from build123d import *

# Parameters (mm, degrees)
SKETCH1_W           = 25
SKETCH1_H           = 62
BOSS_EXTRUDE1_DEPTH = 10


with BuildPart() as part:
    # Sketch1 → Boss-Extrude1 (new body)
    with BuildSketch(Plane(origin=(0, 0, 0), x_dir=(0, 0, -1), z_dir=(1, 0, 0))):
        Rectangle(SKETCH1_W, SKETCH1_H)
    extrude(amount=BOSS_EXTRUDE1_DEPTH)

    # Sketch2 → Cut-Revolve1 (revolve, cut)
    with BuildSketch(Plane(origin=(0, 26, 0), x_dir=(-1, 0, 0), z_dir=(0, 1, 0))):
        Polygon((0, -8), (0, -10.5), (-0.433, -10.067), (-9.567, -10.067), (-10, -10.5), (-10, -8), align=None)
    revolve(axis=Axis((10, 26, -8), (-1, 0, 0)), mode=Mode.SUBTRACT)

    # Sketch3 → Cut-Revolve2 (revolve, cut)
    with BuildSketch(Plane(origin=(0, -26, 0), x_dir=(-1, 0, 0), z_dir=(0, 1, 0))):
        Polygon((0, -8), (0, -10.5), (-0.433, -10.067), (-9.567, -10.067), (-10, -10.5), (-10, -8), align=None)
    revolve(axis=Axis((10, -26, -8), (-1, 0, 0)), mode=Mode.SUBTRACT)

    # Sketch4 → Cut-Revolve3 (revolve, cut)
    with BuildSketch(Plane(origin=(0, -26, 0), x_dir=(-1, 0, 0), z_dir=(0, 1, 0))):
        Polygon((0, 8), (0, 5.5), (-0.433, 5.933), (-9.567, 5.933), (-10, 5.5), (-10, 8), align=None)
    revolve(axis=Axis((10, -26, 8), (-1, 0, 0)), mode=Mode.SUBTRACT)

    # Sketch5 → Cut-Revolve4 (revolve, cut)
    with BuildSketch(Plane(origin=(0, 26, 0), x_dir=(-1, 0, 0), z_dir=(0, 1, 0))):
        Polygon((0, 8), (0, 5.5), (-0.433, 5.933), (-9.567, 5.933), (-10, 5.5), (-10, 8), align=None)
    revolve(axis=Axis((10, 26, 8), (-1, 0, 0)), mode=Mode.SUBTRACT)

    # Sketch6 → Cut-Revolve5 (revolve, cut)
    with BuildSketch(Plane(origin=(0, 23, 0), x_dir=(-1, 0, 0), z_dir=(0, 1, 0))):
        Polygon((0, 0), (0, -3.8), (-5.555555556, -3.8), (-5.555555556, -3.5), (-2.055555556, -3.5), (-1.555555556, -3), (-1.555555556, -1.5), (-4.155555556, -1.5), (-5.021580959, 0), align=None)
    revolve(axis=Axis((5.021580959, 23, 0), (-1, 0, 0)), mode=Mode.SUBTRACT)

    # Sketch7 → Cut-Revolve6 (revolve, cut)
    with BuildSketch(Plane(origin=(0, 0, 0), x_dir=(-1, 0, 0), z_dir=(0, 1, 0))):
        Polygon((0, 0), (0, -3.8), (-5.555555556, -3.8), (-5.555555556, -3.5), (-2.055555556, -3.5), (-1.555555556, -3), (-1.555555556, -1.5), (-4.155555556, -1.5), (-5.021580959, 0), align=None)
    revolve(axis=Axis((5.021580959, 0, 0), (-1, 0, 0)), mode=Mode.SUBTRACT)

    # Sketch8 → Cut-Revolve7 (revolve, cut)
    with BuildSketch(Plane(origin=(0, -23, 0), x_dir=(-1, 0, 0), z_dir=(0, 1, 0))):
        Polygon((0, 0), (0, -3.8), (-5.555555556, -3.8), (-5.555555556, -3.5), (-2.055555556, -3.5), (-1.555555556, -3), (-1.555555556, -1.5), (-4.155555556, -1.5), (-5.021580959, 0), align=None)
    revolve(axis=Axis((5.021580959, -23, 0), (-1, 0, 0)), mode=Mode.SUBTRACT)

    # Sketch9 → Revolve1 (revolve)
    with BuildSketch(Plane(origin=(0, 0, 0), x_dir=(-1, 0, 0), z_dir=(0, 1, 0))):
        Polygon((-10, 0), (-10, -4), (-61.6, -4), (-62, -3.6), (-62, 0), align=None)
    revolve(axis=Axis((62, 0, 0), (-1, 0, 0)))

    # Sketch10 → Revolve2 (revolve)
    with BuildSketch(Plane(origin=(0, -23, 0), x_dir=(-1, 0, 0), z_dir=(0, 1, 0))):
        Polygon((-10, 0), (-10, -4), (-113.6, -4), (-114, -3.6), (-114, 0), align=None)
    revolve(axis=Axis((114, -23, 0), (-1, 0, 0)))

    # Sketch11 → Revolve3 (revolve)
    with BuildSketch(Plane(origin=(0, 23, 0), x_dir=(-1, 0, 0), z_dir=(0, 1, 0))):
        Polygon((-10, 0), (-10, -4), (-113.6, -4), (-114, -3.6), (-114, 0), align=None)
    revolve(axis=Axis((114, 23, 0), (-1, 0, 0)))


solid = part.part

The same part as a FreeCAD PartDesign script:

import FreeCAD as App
import Part
import Sketcher

V = App.Vector
Q = App.Units.Quantity


def add_polygon(sketch, points):
    """Adds a closed chain of lines whose ends are joined by coincident constraints."""
    first, n = sketch.GeometryCount, len(points)
    for a, b in zip(points, points[1:] + points[:1]):
        sketch.addGeometry(Part.LineSegment(App.Vector(*a, 0), App.Vector(*b, 0)), False)
    for i in range(n):
        sketch.addConstraint(Sketcher.Constraint("Coincident", first + i, 2, first + (i + 1) % n, 1))

doc = App.newDocument("Part")
params = doc.addObject("Spreadsheet::Sheet", "Params")
for row, (alias, value) in enumerate([
    ("sketch1_width", "62 mm"),
    ("sketch1_height", "25 mm"),
    ("pad1_length", "10 mm"),
    ("sketch2_width", "10 mm"),
    ("sketch2_height", "2.5 mm"),
    ("groove_angle", "360 deg"),
    ("sketch3_width", "10 mm"),
    ("sketch3_height", "2.5 mm"),
    ("groove2_angle", "360 deg"),
    ("sketch4_width", "10 mm"),
    ("sketch4_height", "2.5 mm"),
    ("groove3_angle", "360 deg"),
    ("sketch5_width", "10 mm"),
    ("sketch5_height", "2.5 mm"),
    ("groove4_angle", "360 deg"),
    ("sketch6_width", "2.6 mm"),
    ("sketch6_width2", "3.5 mm"),
    ("sketch6_height", "3.8 mm"),
    ("sketch6_height2", "1.5 mm"),
    ("sketch6_height3", "0.3 mm"),
    ("groove5_angle", "360 deg"),
    ("sketch7_width", "2.6 mm"),
    ("sketch7_width2", "3.5 mm"),
    ("sketch7_height", "3.8 mm"),
    ("sketch7_height2", "1.5 mm"),
    ("sketch7_height3", "0.3 mm"),
    ("groove6_angle", "360 deg"),
    ("sketch8_width", "2.6 mm"),
    ("sketch8_width2", "3.5 mm"),
    ("sketch8_height", "3.8 mm"),
    ("sketch8_height2", "1.5 mm"),
    ("sketch8_height3", "0.3 mm"),
    ("groove7_angle", "360 deg"),
    ("sketch9_width", "52 mm"),
    ("sketch9_height", "4 mm"),
    ("sketch9_width2", "51.6 mm"),
    ("revolution_angle", "360 deg"),
    ("sketch10_width", "104 mm"),
    ("sketch10_height", "4 mm"),
    ("sketch10_width2", "103.6 mm"),
    ("revolution2_angle", "360 deg"),
    ("sketch11_width", "104 mm"),
    ("sketch11_height", "4 mm"),
    ("sketch11_width2", "103.6 mm"),
    ("revolution3_angle", "360 deg"),
], start=1):
    params.set(f"A{row}", alias)
    params.set(f"B{row}", "=" + value)
    params.setAlias(f"B{row}", alias)

body = doc.addObject("PartDesign::Body", "Body")

sketch1 = body.newObject("Sketcher::SketchObject", "Sketch")
sketch1.AttachmentSupport = (doc.getObject("YZ_Plane"), [""])
sketch1.MapMode = "FlatFace"
add_polygon(sketch1, [(31, 12), (-31, 12), (-31, -12), (31, -12)])
sketch1.addConstraint([
    Sketcher.Constraint("Horizontal", 0),
    Sketcher.Constraint("Vertical", 1),
    Sketcher.Constraint("Horizontal", 2),
    Sketcher.Constraint("Vertical", 3),
    Sketcher.Constraint("Symmetric", 0, 2, 2, 2, -1, 1),
    Sketcher.Constraint("DistanceX", 0, 2, 0, 1, Q("62 mm")),
    Sketcher.Constraint("DistanceY", 1, 2, 1, 1, Q("25 mm")),
])
sketch1.setExpression("Constraints[9]", "Params.sketch1_width")
sketch1.setExpression("Constraints[10]", "Params.sketch1_height")
pad1 = body.newObject("PartDesign::Pad", "Pad")
pad1.Profile = sketch1
pad1.setExpression("Length", "Params.pad1_length")

sketch2 = body.newObject("Sketcher::SketchObject", "Sketch001")
sketch2.AttachmentSupport = (doc.getObject("XZ_Plane"), [""])
sketch2.MapMode = "FlatFace"
sketch2.AttachmentOffset = App.Placement(V(0, 0, -26), App.Rotation())
add_polygon(sketch2, [(0, -10.5), (0, -8), (10, -8), (10, -10.5), (9.6, -10.1), (0.4, -10.1)])
sketch2.addGeometry(Part.LineSegment(V(10, -8, 0), V(0, -8, 0)), True)
sketch2.addConstraint([
    Sketcher.Constraint("Vertical", 0),
    Sketcher.Constraint("Horizontal", 1),
    Sketcher.Constraint("Vertical", 2),
    Sketcher.Constraint("Horizontal", 4),
    Sketcher.Constraint("Horizontal", 6),
    Sketcher.Constraint("Coincident", 6, 1, 1, 2),
    Sketcher.Constraint("PointOnObject", 0, 2, -2),
    Sketcher.Constraint("PointOnObject", 6, 2, -2),
    Sketcher.Constraint("Perpendicular", 3, 5),
    Sketcher.Constraint("Horizontal", 2, 2, 5, 2),
    Sketcher.Constraint("Equal", 3, 5),
    Sketcher.Constraint("DistanceX", 1, 1, 1, 2, Q("10 mm")),
    Sketcher.Constraint("DistanceY", 0, 1, 0, 2, Q("2.5 mm")),
    Sketcher.Constraint("DistanceY", 0, 2, -1, 1, Q("8 mm")),
    Sketcher.Constraint("DistanceX", 4, 2, 4, 1, Q("9.134 mm")),
])
sketch2.setExpression("Constraints[17]", "Params.sketch2_width")
sketch2.setExpression("Constraints[18]", "Params.sketch2_height")
groove = body.newObject("PartDesign::Groove", "Groove")
groove.Profile = sketch2
groove.ReferenceAxis = (sketch2, ["Axis0"])
groove.setExpression("Angle", "Params.groove_angle")

sketch3 = body.newObject("Sketcher::SketchObject", "Sketch002")
sketch3.AttachmentSupport = (doc.getObject("XZ_Plane"), [""])
sketch3.MapMode = "FlatFace"
sketch3.AttachmentOffset = App.Placement(V(0, 0, 26), App.Rotation())
add_polygon(sketch3, [(0, -10.5), (0, -8), (10, -8), (10, -10.5), (9.6, -10.1), (0.4, -10.1)])
sketch3.addGeometry(Part.LineSegment(V(10, -8, 0), V(0, -8, 0)), True)
sketch3.addConstraint([
    Sketcher.Constraint("Vertical", 0),
    Sketcher.Constraint("Horizontal", 1),
    Sketcher.Constraint("Vertical", 2),
    Sketcher.Constraint("Horizontal", 4),
    Sketcher.Constraint("Horizontal", 6),
    Sketcher.Constraint("Coincident", 6, 1, 1, 2),
    Sketcher.Constraint("PointOnObject", 0, 2, -2),
    Sketcher.Constraint("PointOnObject", 6, 2, -2),
    Sketcher.Constraint("Perpendicular", 3, 5),
    Sketcher.Constraint("Horizontal", 2, 2, 5, 2),
    Sketcher.Constraint("Equal", 3, 5),
    Sketcher.Constraint("DistanceX", 1, 1, 1, 2, Q("10 mm")),
    Sketcher.Constraint("DistanceY", 0, 1, 0, 2, Q("2.5 mm")),
    Sketcher.Constraint("DistanceY", 0, 2, -1, 1, Q("8 mm")),
    Sketcher.Constraint("DistanceX", 4, 2, 4, 1, Q("9.134 mm")),
])
sketch3.setExpression("Constraints[17]", "Params.sketch3_width")
sketch3.setExpression("Constraints[18]", "Params.sketch3_height")
groove2 = body.newObject("PartDesign::Groove", "Groove001")
groove2.Profile = sketch3
groove2.ReferenceAxis = (sketch3, ["Axis0"])
groove2.setExpression("Angle", "Params.groove2_angle")

sketch4 = body.newObject("Sketcher::SketchObject", "Sketch003")
sketch4.AttachmentSupport = (doc.getObject("XZ_Plane"), [""])
sketch4.MapMode = "FlatFace"
sketch4.AttachmentOffset = App.Placement(V(0, 0, 26), App.Rotation())
add_polygon(sketch4, [(0, 5.5), (0, 8), (10, 8), (10, 5.5), (9.6, 5.9), (0.4, 5.9)])
sketch4.addGeometry(Part.LineSegment(V(10, 8, 0), V(0, 8, 0)), True)
sketch4.addConstraint([
    Sketcher.Constraint("Vertical", 0),
    Sketcher.Constraint("Horizontal", 1),
    Sketcher.Constraint("Vertical", 2),
    Sketcher.Constraint("Horizontal", 4),
    Sketcher.Constraint("Horizontal", 6),
    Sketcher.Constraint("Coincident", 6, 1, 1, 2),
    Sketcher.Constraint("PointOnObject", 0, 2, -2),
    Sketcher.Constraint("PointOnObject", 6, 2, -2),
    Sketcher.Constraint("Perpendicular", 3, 5),
    Sketcher.Constraint("Horizontal", 2, 2, 5, 2),
    Sketcher.Constraint("Equal", 3, 5),
    Sketcher.Constraint("DistanceX", 1, 1, 1, 2, Q("10 mm")),
    Sketcher.Constraint("DistanceY", 0, 1, 0, 2, Q("2.5 mm")),
    Sketcher.Constraint("DistanceY", -1, 1, 0, 2, Q("8 mm")),
    Sketcher.Constraint("DistanceX", 4, 2, 4, 1, Q("9.134 mm")),
])
sketch4.setExpression("Constraints[17]", "Params.sketch4_width")
sketch4.setExpression("Constraints[18]", "Params.sketch4_height")
groove3 = body.newObject("PartDesign::Groove", "Groove002")
groove3.Profile = sketch4
groove3.ReferenceAxis = (sketch4, ["Axis0"])
groove3.setExpression("Angle", "Params.groove3_angle")

sketch5 = body.newObject("Sketcher::SketchObject", "Sketch004")
sketch5.AttachmentSupport = (doc.getObject("XZ_Plane"), [""])
sketch5.MapMode = "FlatFace"
sketch5.AttachmentOffset = App.Placement(V(0, 0, -26), App.Rotation())
add_polygon(sketch5, [(0, 5.5), (0, 8), (10, 8), (10, 5.5), (9.6, 5.9), (0.4, 5.9)])
sketch5.addGeometry(Part.LineSegment(V(10, 8, 0), V(0, 8, 0)), True)
sketch5.addConstraint([
    Sketcher.Constraint("Vertical", 0),
    Sketcher.Constraint("Horizontal", 1),
    Sketcher.Constraint("Vertical", 2),
    Sketcher.Constraint("Horizontal", 4),
    Sketcher.Constraint("Horizontal", 6),
    Sketcher.Constraint("Coincident", 6, 1, 1, 2),
    Sketcher.Constraint("PointOnObject", 0, 2, -2),
    Sketcher.Constraint("PointOnObject", 6, 2, -2),
    Sketcher.Constraint("Perpendicular", 3, 5),
    Sketcher.Constraint("Horizontal", 2, 2, 5, 2),
    Sketcher.Constraint("Equal", 3, 5),
    Sketcher.Constraint("DistanceX", 1, 1, 1, 2, Q("10 mm")),
    Sketcher.Constraint("DistanceY", 0, 1, 0, 2, Q("2.5 mm")),
    Sketcher.Constraint("DistanceY", -1, 1, 0, 2, Q("8 mm")),
    Sketcher.Constraint("DistanceX", 4, 2, 4, 1, Q("9.134 mm")),
])
sketch5.setExpression("Constraints[17]", "Params.sketch5_width")
sketch5.setExpression("Constraints[18]", "Params.sketch5_height")
groove4 = body.newObject("PartDesign::Groove", "Groove003")
groove4.Profile = sketch5
groove4.ReferenceAxis = (sketch5, ["Axis0"])
groove4.setExpression("Angle", "Params.groove4_angle")

sketch6 = body.newObject("Sketcher::SketchObject", "Sketch005")
sketch6.AttachmentSupport = (doc.getObject("XZ_Plane"), [""])
sketch6.MapMode = "FlatFace"
sketch6.AttachmentOffset = App.Placement(V(0, 0, -23), App.Rotation())
add_polygon(sketch6, [(0, -3.8), (0, 0), (5.02, 0), (4.16, -1.5), (1.56, -1.5), (1.56, -3), (2.06, -3.5), (5.56, -3.5), (5.56, -3.8)])
sketch6.addConstraint([
    Sketcher.Constraint("Vertical", 0),
    Sketcher.Constraint("Horizontal", 1),
    Sketcher.Constraint("Horizontal", 3),
    Sketcher.Constraint("Vertical", 4),
    Sketcher.Constraint("Horizontal", 6),
    Sketcher.Constraint("Vertical", 7),
    Sketcher.Constraint("Horizontal", 8),
    Sketcher.Constraint("Coincident", 0, 2, -1, 1),
    Sketcher.Constraint("Angle", 2, Q("-120 deg")),
    Sketcher.Constraint("Angle", 5, Q("-45 deg")),
    Sketcher.Constraint("DistanceX", 3, 2, 3, 1, Q("2.6 mm")),
    Sketcher.Constraint("DistanceX", 6, 1, 6, 2, Q("3.5 mm")),
    Sketcher.Constraint("DistanceY", 0, 1, 0, 2, Q("3.8 mm")),
    Sketcher.Constraint("DistanceY", 4, 2, 4, 1, Q("1.5 mm")),
    Sketcher.Constraint("DistanceY", 7, 2, 7, 1, Q("0.3 mm")),
    Sketcher.Constraint("DistanceY", 4, 2, -1, 1, Q("3 mm")),
    Sketcher.Constraint("DistanceX", 1, 1, 1, 2, Q("5.021581 mm")),
])
sketch6.setExpression("Constraints[19]", "Params.sketch6_width")
sketch6.setExpression("Constraints[20]", "Params.sketch6_width2")
sketch6.setExpression("Constraints[21]", "Params.sketch6_height")
sketch6.setExpression("Constraints[22]", "Params.sketch6_height2")
sketch6.setExpression("Constraints[23]", "Params.sketch6_height3")
groove5 = body.newObject("PartDesign::Groove", "Groove004")
groove5.Profile = sketch6
groove5.ReferenceAxis = (sketch6, ["H_Axis"])
groove5.setExpression("Angle", "Params.groove5_angle")

sketch7 = body.newObject("Sketcher::SketchObject", "Sketch006")
sketch7.AttachmentSupport = (doc.getObject("XZ_Plane"), [""])
sketch7.MapMode = "FlatFace"
add_polygon(sketch7, [(0, -3.8), (0, 0), (5.02, 0), (4.16, -1.5), (1.56, -1.5), (1.56, -3), (2.06, -3.5), (5.56, -3.5), (5.56, -3.8)])
sketch7.addConstraint([
    Sketcher.Constraint("Vertical", 0),
    Sketcher.Constraint("Horizontal", 1),
    Sketcher.Constraint("Horizontal", 3),
    Sketcher.Constraint("Vertical", 4),
    Sketcher.Constraint("Horizontal", 6),
    Sketcher.Constraint("Vertical", 7),
    Sketcher.Constraint("Horizontal", 8),
    Sketcher.Constraint("Coincident", 0, 2, -1, 1),
    Sketcher.Constraint("Angle", 2, Q("-120 deg")),
    Sketcher.Constraint("Angle", 5, Q("-45 deg")),
    Sketcher.Constraint("DistanceX", 3, 2, 3, 1, Q("2.6 mm")),
    Sketcher.Constraint("DistanceX", 6, 1, 6, 2, Q("3.5 mm")),
    Sketcher.Constraint("DistanceY", 0, 1, 0, 2, Q("3.8 mm")),
    Sketcher.Constraint("DistanceY", 4, 2, 4, 1, Q("1.5 mm")),
    Sketcher.Constraint("DistanceY", 7, 2, 7, 1, Q("0.3 mm")),
    Sketcher.Constraint("DistanceY", 4, 2, -1, 1, Q("3 mm")),
    Sketcher.Constraint("DistanceX", 1, 1, 1, 2, Q("5.021581 mm")),
])
sketch7.setExpression("Constraints[19]", "Params.sketch7_width")
sketch7.setExpression("Constraints[20]", "Params.sketch7_width2")
sketch7.setExpression("Constraints[21]", "Params.sketch7_height")
sketch7.setExpression("Constraints[22]", "Params.sketch7_height2")
sketch7.setExpression("Constraints[23]", "Params.sketch7_height3")
groove6 = body.newObject("PartDesign::Groove", "Groove005")
groove6.Profile = sketch7
groove6.ReferenceAxis = (sketch7, ["H_Axis"])
groove6.setExpression("Angle", "Params.groove6_angle")

sketch8 = body.newObject("Sketcher::SketchObject", "Sketch007")
sketch8.AttachmentSupport = (doc.getObject("XZ_Plane"), [""])
sketch8.MapMode = "FlatFace"
sketch8.AttachmentOffset = App.Placement(V(0, 0, 23), App.Rotation())
add_polygon(sketch8, [(0, -3.8), (0, 0), (5.02, 0), (4.16, -1.5), (1.56, -1.5), (1.56, -3), (2.06, -3.5), (5.56, -3.5), (5.56, -3.8)])
sketch8.addConstraint([
    Sketcher.Constraint("Vertical", 0),
    Sketcher.Constraint("Horizontal", 1),
    Sketcher.Constraint("Horizontal", 3),
    Sketcher.Constraint("Vertical", 4),
    Sketcher.Constraint("Horizontal", 6),
    Sketcher.Constraint("Vertical", 7),
    Sketcher.Constraint("Horizontal", 8),
    Sketcher.Constraint("Coincident", 0, 2, -1, 1),
    Sketcher.Constraint("Angle", 2, Q("-120 deg")),
    Sketcher.Constraint("Angle", 5, Q("-45 deg")),
    Sketcher.Constraint("DistanceX", 3, 2, 3, 1, Q("2.6 mm")),
    Sketcher.Constraint("DistanceX", 6, 1, 6, 2, Q("3.5 mm")),
    Sketcher.Constraint("DistanceY", 0, 1, 0, 2, Q("3.8 mm")),
    Sketcher.Constraint("DistanceY", 4, 2, 4, 1, Q("1.5 mm")),
    Sketcher.Constraint("DistanceY", 7, 2, 7, 1, Q("0.3 mm")),
    Sketcher.Constraint("DistanceY", 4, 2, -1, 1, Q("3 mm")),
    Sketcher.Constraint("DistanceX", 1, 1, 1, 2, Q("5.021581 mm")),
])
sketch8.setExpression("Constraints[19]", "Params.sketch8_width")
sketch8.setExpression("Constraints[20]", "Params.sketch8_width2")
sketch8.setExpression("Constraints[21]", "Params.sketch8_height")
sketch8.setExpression("Constraints[22]", "Params.sketch8_height2")
sketch8.setExpression("Constraints[23]", "Params.sketch8_height3")
groove7 = body.newObject("PartDesign::Groove", "Groove006")
groove7.Profile = sketch8
groove7.ReferenceAxis = (sketch8, ["H_Axis"])
groove7.setExpression("Angle", "Params.groove7_angle")

sketch9 = body.newObject("Sketcher::SketchObject", "Sketch008")
sketch9.AttachmentSupport = (doc.getObject("XZ_Plane"), [""])
sketch9.MapMode = "FlatFace"
add_polygon(sketch9, [(10, -4), (10, 0), (62, 0), (62, -3.6), (61.6, -4)])
sketch9.addConstraint([
    Sketcher.Constraint("Vertical", 0),
    Sketcher.Constraint("Horizontal", 1),
    Sketcher.Constraint("Vertical", 2),
    Sketcher.Constraint("Horizontal", 4),
    Sketcher.Constraint("PointOnObject", 0, 2, -1),
    Sketcher.Constraint("DistanceX", 1, 1, 1, 2, Q("52 mm")),
    Sketcher.Constraint("DistanceY", 0, 1, 0, 2, Q("4 mm")),
    Sketcher.Constraint("Angle", 3, Q("-135 deg")),
    Sketcher.Constraint("DistanceX", 4, 2, 4, 1, Q("51.6 mm")),
    Sketcher.Constraint("DistanceX", -1, 1, 0, 2, Q("10 mm")),
])
sketch9.setExpression("Constraints[10]", "Params.sketch9_width")
sketch9.setExpression("Constraints[11]", "Params.sketch9_height")
sketch9.setExpression("Constraints[13]", "Params.sketch9_width2")
revolution = body.newObject("PartDesign::Revolution", "Revolution")
revolution.Profile = sketch9
revolution.ReferenceAxis = (sketch9, ["H_Axis"])
revolution.setExpression("Angle", "Params.revolution_angle")

sketch10 = body.newObject("Sketcher::SketchObject", "Sketch009")
sketch10.AttachmentSupport = (doc.getObject("XZ_Plane"), [""])
sketch10.MapMode = "FlatFace"
sketch10.AttachmentOffset = App.Placement(V(0, 0, 23), App.Rotation())
add_polygon(sketch10, [(10, -4), (10, 0), (114, 0), (114, -3.6), (113.6, -4)])
sketch10.addConstraint([
    Sketcher.Constraint("Vertical", 0),
    Sketcher.Constraint("Horizontal", 1),
    Sketcher.Constraint("Vertical", 2),
    Sketcher.Constraint("Horizontal", 4),
    Sketcher.Constraint("PointOnObject", 0, 2, -1),
    Sketcher.Constraint("DistanceX", 1, 1, 1, 2, Q("104 mm")),
    Sketcher.Constraint("DistanceY", 0, 1, 0, 2, Q("4 mm")),
    Sketcher.Constraint("Angle", 3, Q("-135 deg")),
    Sketcher.Constraint("DistanceX", 4, 2, 4, 1, Q("103.6 mm")),
    Sketcher.Constraint("DistanceX", -1, 1, 0, 2, Q("10 mm")),
])
sketch10.setExpression("Constraints[10]", "Params.sketch10_width")
sketch10.setExpression("Constraints[11]", "Params.sketch10_height")
sketch10.setExpression("Constraints[13]", "Params.sketch10_width2")
revolution2 = body.newObject("PartDesign::Revolution", "Revolution001")
revolution2.Profile = sketch10
revolution2.ReferenceAxis = (sketch10, ["H_Axis"])
revolution2.setExpression("Angle", "Params.revolution2_angle")

sketch11 = body.newObject("Sketcher::SketchObject", "Sketch010")
sketch11.AttachmentSupport = (doc.getObject("XZ_Plane"), [""])
sketch11.MapMode = "FlatFace"
sketch11.AttachmentOffset = App.Placement(V(0, 0, -23), App.Rotation())
add_polygon(sketch11, [(10, -4), (10, 0), (114, 0), (114, -3.6), (113.6, -4)])
sketch11.addConstraint([
    Sketcher.Constraint("Vertical", 0),
    Sketcher.Constraint("Horizontal", 1),
    Sketcher.Constraint("Vertical", 2),
    Sketcher.Constraint("Horizontal", 4),
    Sketcher.Constraint("PointOnObject", 0, 2, -1),
    Sketcher.Constraint("DistanceX", 1, 1, 1, 2, Q("104 mm")),
    Sketcher.Constraint("DistanceY", 0, 1, 0, 2, Q("4 mm")),
    Sketcher.Constraint("Angle", 3, Q("-135 deg")),
    Sketcher.Constraint("DistanceX", 4, 2, 4, 1, Q("103.6 mm")),
    Sketcher.Constraint("DistanceX", -1, 1, 0, 2, Q("10 mm")),
])
sketch11.setExpression("Constraints[10]", "Params.sketch11_width")
sketch11.setExpression("Constraints[11]", "Params.sketch11_height")
sketch11.setExpression("Constraints[13]", "Params.sketch11_width2")
revolution3 = body.newObject("PartDesign::Revolution", "Revolution002")
revolution3.Profile = sketch11
revolution3.ReferenceAxis = (sketch11, ["H_Axis"])
revolution3.setExpression("Angle", "Params.revolution3_angle")

doc.recompute()
